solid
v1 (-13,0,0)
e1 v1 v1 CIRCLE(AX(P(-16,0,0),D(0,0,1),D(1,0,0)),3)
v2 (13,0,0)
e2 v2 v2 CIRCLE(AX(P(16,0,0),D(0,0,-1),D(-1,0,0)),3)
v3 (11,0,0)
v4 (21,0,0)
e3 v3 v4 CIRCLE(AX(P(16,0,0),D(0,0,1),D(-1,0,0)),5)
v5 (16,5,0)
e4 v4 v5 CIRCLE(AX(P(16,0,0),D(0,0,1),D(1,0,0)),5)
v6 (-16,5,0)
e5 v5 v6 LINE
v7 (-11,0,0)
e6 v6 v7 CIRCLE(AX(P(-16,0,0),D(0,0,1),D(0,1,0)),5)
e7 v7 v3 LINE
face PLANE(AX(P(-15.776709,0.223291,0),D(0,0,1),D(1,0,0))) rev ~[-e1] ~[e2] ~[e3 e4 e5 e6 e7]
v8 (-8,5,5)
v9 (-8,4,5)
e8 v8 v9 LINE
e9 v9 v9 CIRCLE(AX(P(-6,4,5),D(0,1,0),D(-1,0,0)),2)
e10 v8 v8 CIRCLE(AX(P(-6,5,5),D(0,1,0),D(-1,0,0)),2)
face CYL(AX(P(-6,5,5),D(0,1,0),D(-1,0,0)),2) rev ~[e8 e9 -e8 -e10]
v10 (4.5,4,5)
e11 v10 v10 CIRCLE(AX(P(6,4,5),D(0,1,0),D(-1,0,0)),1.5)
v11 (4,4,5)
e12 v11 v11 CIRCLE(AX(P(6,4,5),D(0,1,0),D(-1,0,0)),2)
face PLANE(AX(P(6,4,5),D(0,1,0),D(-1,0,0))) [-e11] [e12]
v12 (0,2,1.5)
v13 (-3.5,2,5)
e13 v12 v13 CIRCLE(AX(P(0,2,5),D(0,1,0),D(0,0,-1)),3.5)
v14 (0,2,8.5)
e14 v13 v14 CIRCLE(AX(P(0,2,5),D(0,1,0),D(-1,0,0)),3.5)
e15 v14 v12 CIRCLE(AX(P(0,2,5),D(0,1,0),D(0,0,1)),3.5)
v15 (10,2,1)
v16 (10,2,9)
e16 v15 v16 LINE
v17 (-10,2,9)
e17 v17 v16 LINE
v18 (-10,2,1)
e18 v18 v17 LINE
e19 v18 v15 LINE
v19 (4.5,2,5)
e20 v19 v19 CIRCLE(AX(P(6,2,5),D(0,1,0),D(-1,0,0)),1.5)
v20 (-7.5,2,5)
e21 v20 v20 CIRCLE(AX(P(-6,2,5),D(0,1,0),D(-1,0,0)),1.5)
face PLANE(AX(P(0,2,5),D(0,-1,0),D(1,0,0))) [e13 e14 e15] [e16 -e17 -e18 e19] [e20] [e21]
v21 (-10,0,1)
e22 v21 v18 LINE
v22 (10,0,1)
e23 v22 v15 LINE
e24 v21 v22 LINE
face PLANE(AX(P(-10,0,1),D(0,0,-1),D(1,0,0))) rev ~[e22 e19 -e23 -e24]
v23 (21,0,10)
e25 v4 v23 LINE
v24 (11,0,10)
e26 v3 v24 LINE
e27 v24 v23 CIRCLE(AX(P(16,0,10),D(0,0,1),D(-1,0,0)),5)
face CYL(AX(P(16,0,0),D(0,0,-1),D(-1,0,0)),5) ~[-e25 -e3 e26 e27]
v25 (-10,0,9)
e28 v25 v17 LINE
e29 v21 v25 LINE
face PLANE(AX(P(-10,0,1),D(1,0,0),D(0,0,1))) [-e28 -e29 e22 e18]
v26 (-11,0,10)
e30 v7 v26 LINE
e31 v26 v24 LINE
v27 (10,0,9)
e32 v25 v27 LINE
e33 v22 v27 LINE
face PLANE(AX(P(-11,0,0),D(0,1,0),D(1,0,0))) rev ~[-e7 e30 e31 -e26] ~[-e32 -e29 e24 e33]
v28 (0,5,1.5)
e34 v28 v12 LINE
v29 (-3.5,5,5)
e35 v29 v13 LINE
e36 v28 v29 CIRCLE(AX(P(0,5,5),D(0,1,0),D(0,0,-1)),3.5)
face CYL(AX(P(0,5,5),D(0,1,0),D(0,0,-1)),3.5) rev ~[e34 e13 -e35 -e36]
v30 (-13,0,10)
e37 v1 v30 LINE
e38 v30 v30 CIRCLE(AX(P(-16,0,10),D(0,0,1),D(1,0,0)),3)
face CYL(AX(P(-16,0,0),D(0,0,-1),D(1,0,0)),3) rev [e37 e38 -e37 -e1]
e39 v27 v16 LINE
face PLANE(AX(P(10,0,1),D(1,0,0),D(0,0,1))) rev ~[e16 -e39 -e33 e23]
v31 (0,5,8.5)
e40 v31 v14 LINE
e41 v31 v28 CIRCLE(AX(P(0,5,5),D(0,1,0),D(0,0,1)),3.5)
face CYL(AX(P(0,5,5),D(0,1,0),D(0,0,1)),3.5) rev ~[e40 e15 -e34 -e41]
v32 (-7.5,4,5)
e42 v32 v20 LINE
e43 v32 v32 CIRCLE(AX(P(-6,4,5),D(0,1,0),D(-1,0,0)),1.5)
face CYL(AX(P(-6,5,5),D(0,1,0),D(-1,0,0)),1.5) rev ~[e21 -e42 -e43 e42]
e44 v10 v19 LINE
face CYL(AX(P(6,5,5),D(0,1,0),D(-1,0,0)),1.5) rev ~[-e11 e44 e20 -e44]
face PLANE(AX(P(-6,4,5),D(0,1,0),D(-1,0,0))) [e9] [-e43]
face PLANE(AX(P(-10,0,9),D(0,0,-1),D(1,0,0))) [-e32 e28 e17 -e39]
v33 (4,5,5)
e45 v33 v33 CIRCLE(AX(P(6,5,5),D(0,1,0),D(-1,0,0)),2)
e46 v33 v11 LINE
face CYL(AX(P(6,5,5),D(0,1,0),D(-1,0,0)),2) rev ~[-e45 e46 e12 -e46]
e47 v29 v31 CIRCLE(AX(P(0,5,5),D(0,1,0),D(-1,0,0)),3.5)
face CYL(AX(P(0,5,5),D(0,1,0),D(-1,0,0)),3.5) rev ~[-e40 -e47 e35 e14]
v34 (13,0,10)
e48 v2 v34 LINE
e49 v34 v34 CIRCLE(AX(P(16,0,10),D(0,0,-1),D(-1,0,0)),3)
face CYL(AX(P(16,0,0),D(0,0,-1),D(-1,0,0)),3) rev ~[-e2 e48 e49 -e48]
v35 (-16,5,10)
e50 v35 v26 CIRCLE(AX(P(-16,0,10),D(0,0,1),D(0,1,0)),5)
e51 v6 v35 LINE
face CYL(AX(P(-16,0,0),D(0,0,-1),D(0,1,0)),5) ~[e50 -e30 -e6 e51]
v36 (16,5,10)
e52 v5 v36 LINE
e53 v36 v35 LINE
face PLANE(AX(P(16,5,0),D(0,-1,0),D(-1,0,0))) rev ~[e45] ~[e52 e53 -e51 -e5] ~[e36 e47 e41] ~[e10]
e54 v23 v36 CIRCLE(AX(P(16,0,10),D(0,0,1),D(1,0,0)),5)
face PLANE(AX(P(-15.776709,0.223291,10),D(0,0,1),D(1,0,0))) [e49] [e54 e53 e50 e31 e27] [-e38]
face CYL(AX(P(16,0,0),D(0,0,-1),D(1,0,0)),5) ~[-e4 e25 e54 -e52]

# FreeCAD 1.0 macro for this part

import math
import FreeCAD as App
import Part
import Sketcher
Q = App.Units.Quantity

doc = App.newDocument("Part")
body = doc.addObject("PartDesign::Body", "Body")

sketch1 = body.newObject("Sketcher::SketchObject", "Sketch")
sketch1.AttachmentSupport = (doc.getObject("XY_Plane"), [""])
sketch1.MapMode = "FlatFace"
sketch1.addGeometry([
    Part.ArcOfCircle(Part.Circle(App.Vector(-16, 0, 0), App.Vector(0, 0, 1), 5), math.radians(90), math.radians(360)),
    Part.LineSegment(App.Vector(-11, 0, 0), App.Vector(11, 0, 0)),
    Part.ArcOfCircle(Part.Circle(App.Vector(16, 0, 0), App.Vector(0, 0, 1), 5), math.radians(180), math.radians(360)),
    Part.ArcOfCircle(Part.Circle(App.Vector(16, 0, 0), App.Vector(0, 0, 1), 5), math.radians(0), math.radians(90)),
    Part.LineSegment(App.Vector(16, 5, 0), App.Vector(-16, 5, 0)),
    Part.Circle(App.Vector(-16, 0, 0), App.Vector(0, 0, 1), 3),
    Part.Circle(App.Vector(16, 0, 0), App.Vector(0, 0, 1), 3),
], False)
sketch1.addConstraint([
    Sketcher.Constraint("Coincident", 0, 2, 1, 1),
    Sketcher.Constraint("Coincident", 1, 2, 2, 1),
    Sketcher.Constraint("Tangent", 2, 2, 3, 1),
    Sketcher.Constraint("Tangent", 3, 2, 4, 1),
    Sketcher.Constraint("Tangent", 4, 2, 0, 1),
    Sketcher.Constraint("Horizontal", 1),
    Sketcher.Constraint("Horizontal", 4),
    Sketcher.Constraint("Coincident", 5, 3, 0, 3),
    Sketcher.Constraint("Coincident", 6, 3, 2, 3),
    Sketcher.Constraint("Equal", 0, 2),
    Sketcher.Constraint("Equal", 2, 3),
    Sketcher.Constraint("Equal", 5, 6),
    Sketcher.Constraint("Symmetric", 0, 3, 2, 3, -1, 1),
    Sketcher.Constraint("PointOnObject", 0, 2, -1),
    Sketcher.Constraint("PointOnObject", 2, 2, -1),
    Sketcher.Constraint("Diameter", 5, Q("6 mm")),
    Sketcher.Constraint("Radius", 0, Q("5 mm")),
    Sketcher.Constraint("DistanceX", 1, 1, 1, 2, Q("22 mm")),
])
pad1 = body.newObject("PartDesign::Pad", "Pad")
pad1.Profile = sketch1
pad1.Length = 10

sketch2 = body.newObject("Sketcher::SketchObject", "Sketch001")
sketch2.AttachmentSupport = (doc.getObject("XZ_Plane"), [""])
sketch2.MapMode = "FlatFace"
sketch2.addGeometry([
    Part.LineSegment(App.Vector(-10, 9, 0), App.Vector(-10, 1, 0)),
    Part.LineSegment(App.Vector(-10, 1, 0), App.Vector(10, 1, 0)),
    Part.LineSegment(App.Vector(10, 1, 0), App.Vector(10, 9, 0)),
    Part.LineSegment(App.Vector(10, 9, 0), App.Vector(-10, 9, 0)),
], False)
sketch2.addConstraint([
    Sketcher.Constraint("Coincident", 0, 2, 1, 1),
    Sketcher.Constraint("Coincident", 1, 2, 2, 1),
    Sketcher.Constraint("Coincident", 2, 2, 3, 1),
    Sketcher.Constraint("Coincident", 3, 2, 0, 1),
    Sketcher.Constraint("Vertical", 0),
    Sketcher.Constraint("Horizontal", 1),
    Sketcher.Constraint("Vertical", 2),
    Sketcher.Constraint("Horizontal", 3),
    Sketcher.Constraint("DistanceX", 1, 1, 1, 2, Q("20 mm")),
    Sketcher.Constraint("DistanceY", 0, 2, 0, 1, Q("8 mm")),
    Sketcher.Constraint("DistanceX", 0, 2, -1, 1, Q("10 mm")),
    Sketcher.Constraint("DistanceY", -1, 1, 0, 2, Q("1 mm")),
])
pocket1 = body.newObject("PartDesign::Pocket", "Pocket")
pocket1.Profile = sketch2
pocket1.Length = 2

sketch3 = body.newObject("Sketcher::SketchObject", "Sketch002")
sketch3.AttachmentSupport = (doc.getObject("XZ_Plane"), [""])
sketch3.MapMode = "FlatFace"
sketch3.AttachmentOffset = App.Placement(App.Vector(0, 0, -5), App.Rotation())
sketch3.addGeometry([
    Part.ArcOfCircle(Part.Circle(App.Vector(0, 5, 0), App.Vector(0, 0, 1), 3.5), math.radians(90), math.radians(180)),
    Part.ArcOfCircle(Part.Circle(App.Vector(0, 5, 0), App.Vector(0, 0, 1), 3.5), math.radians(-90), math.radians(90)),
    Part.ArcOfCircle(Part.Circle(App.Vector(0, 5, 0), App.Vector(0, 0, 1), 3.5), math.radians(180), math.radians(270)),
    Part.Circle(App.Vector(-6, 5, 0), App.Vector(0, 0, 1), 1.5),
    Part.Circle(App.Vector(6, 5, 0), App.Vector(0, 0, 1), 1.5),
], False)
sketch3.addConstraint([
    Sketcher.Constraint("Tangent", 0, 1, 1, 2),
    Sketcher.Constraint("Tangent", 1, 1, 2, 2),
    Sketcher.Constraint("Tangent", 2, 1, 0, 2),
    Sketcher.Constraint("Equal", 3, 4),
    Sketcher.Constraint("Symmetric", 3, 3, 4, 3, -2),
    Sketcher.Constraint("PointOnObject", 0, 3, -2),
    Sketcher.Constraint("PointOnObject", 0, 1, -2),
    Sketcher.Constraint("PointOnObject", 1, 1, -2),
    Sketcher.Constraint("Horizontal", 2, 3, 3, 3),
    Sketcher.Constraint("Horizontal", 4, 3, 2, 1),
    Sketcher.Constraint("Diameter", 3, Q("3 mm")),
    Sketcher.Constraint("Radius", 0, Q("3.5 mm")),
    Sketcher.Constraint("DistanceY", -1, 1, 0, 3, Q("5 mm")),
    Sketcher.Constraint("DistanceX", 3, 3, -1, 1, Q("6 mm")),
])
pocket2 = body.newObject("PartDesign::Pocket", "Pocket001")
pocket2.Profile = sketch3
pocket2.Length = 5
pocket2.Reversed = True

sketch4 = body.newObject("Sketcher::SketchObject", "Sketch003")
sketch4.AttachmentSupport = (doc.getObject("XZ_Plane"), [""])
sketch4.MapMode = "FlatFace"
sketch4.AttachmentOffset = App.Placement(App.Vector(0, 0, -5), App.Rotation())
sketch4.addGeometry([
    Part.Circle(App.Vector(6, 5, 0), App.Vector(0, 0, 1), 2),
    Part.Circle(App.Vector(-6, 5, 0), App.Vector(0, 0, 1), 2),
], False)
sketch4.addConstraint([
    Sketcher.Constraint("Equal", 0, 1),
    Sketcher.Constraint("Symmetric", 0, 3, 1, 3, -2),
    Sketcher.Constraint("Diameter", 0, Q("4 mm")),
    Sketcher.Constraint("DistanceX", -1, 1, 0, 3, Q("6 mm")),
    Sketcher.Constraint("DistanceY", -1, 1, 0, 3, Q("5 mm")),
])
pocket3 = body.newObject("PartDesign::Pocket", "Pocket002")
pocket3.Profile = sketch4
pocket3.Length = 1
pocket3.Reversed = True

doc.recompute()
